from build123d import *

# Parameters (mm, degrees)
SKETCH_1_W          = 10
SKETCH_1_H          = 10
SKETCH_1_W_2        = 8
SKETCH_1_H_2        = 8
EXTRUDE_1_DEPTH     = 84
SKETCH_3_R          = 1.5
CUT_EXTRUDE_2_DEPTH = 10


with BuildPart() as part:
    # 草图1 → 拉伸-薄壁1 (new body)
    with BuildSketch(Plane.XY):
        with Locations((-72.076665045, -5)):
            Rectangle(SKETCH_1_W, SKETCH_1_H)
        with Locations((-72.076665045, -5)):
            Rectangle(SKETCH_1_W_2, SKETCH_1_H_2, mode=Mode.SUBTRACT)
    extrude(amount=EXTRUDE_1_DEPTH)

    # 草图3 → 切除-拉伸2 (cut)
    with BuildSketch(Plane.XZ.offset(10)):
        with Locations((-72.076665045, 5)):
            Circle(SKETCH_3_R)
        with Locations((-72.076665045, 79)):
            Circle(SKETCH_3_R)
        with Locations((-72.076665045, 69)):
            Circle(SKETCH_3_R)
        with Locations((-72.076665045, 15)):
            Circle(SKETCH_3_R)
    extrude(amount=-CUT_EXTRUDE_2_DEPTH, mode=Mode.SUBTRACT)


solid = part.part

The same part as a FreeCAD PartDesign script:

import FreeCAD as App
import Part
import Sketcher
from FreeCAD import Vector
Q = App.Units.Quantity

doc = App.newDocument("Part")
body = doc.addObject("PartDesign::Body", "Body")

sketch1 = body.newObject("Sketcher::SketchObject", "Sketch")
sketch1.AttachmentSupport = (doc.getObject("XY_Plane"), [""])
sketch1.MapMode = "FlatFace"
sketch1.addGeometry([
    Part.LineSegment(Vector(-77, 0, 0), Vector(-77, -10, 0)),
    Part.LineSegment(Vector(-77, -10, 0), Vector(-67, -10, 0)),
    Part.LineSegment(Vector(-67, -10, 0), Vector(-67, 0, 0)),
    Part.LineSegment(Vector(-67, 0, 0), Vector(-77, 0, 0)),
    Part.LineSegment(Vector(-68, -9, 0), Vector(-76, -9, 0)),
    Part.LineSegment(Vector(-76, -9, 0), Vector(-76, -1, 0)),
    Part.LineSegment(Vector(-76, -1, 0), Vector(-68, -1, 0)),
    Part.LineSegment(Vector(-68, -1, 0), Vector(-68, -9, 0)),
], False)
sketch1.addConstraint([
    Sketcher.Constraint("Coincident", 0, 2, 1, 1),
    Sketcher.Constraint("Coincident", 1, 2, 2, 1),
    Sketcher.Constraint("Coincident", 2, 2, 3, 1),
    Sketcher.Constraint("Coincident", 3, 2, 0, 1),
    Sketcher.Constraint("Coincident", 4, 2, 5, 1),
    Sketcher.Constraint("Coincident", 5, 2, 6, 1),
    Sketcher.Constraint("Coincident", 6, 2, 7, 1),
    Sketcher.Constraint("Coincident", 7, 2, 4, 1),
    Sketcher.Constraint("Vertical", 0),
    Sketcher.Constraint("Horizontal", 1),
    Sketcher.Constraint("Vertical", 2),
    Sketcher.Constraint("Horizontal", 3),
    Sketcher.Constraint("Horizontal", 4),
    Sketcher.Constraint("Vertical", 5),
    Sketcher.Constraint("Horizontal", 6),
    Sketcher.Constraint("Vertical", 7),
    Sketcher.Constraint("PointOnObject", 2, 2, -1),
    Sketcher.Constraint("Equal", 3, 0),
    Sketcher.Constraint("Equal", 6, 5),
    Sketcher.Constraint("DistanceX", 1, 1, 1, 2, Q("10 mm")),
    Sketcher.Constraint("DistanceX", 4, 2, 4, 1, Q("8 mm")),
    Sketcher.Constraint("DistanceY", 4, 2, -1, 1, Q("9 mm")),
    Sketcher.Constraint("DistanceX", 0, 2, 4, 2, Q("1 mm")),
    Sketcher.Constraint("DistanceX", 0, 2, -1, 1, Q("77.076665 mm")),
])
pad1 = body.newObject("PartDesign::Pad", "Pad")
pad1.Profile = sketch1
pad1.Length = 84

sketch2 = body.newObject("Sketcher::SketchObject", "Sketch001")
sketch2.AttachmentSupport = (doc.getObject("XZ_Plane"), [""])
sketch2.MapMode = "FlatFace"
sketch2.AttachmentOffset = App.Placement(Vector(0, 0, 10), App.Rotation())
sketch2.addGeometry([
    Part.Circle(Vector(-72.1, 5, 0), Vector(0, 0, 1), 1.5),
    Part.Circle(Vector(-72.1, 79, 0), Vector(0, 0, 1), 1.5),
    Part.Circle(Vector(-72.1, 69, 0), Vector(0, 0, 1), 1.5),
    Part.Circle(Vector(-72.1, 15, 0), Vector(0, 0, 1), 1.5),
], False)
sketch2.addConstraint([
    Sketcher.Constraint("Equal", 0, 1),
    Sketcher.Constraint("Equal", 1, 2),
    Sketcher.Constraint("Equal", 2, 3),
    Sketcher.Constraint("Vertical", 0, 3, 1, 3),
    Sketcher.Constraint("Vertical", 1, 3, 2, 3),
    Sketcher.Constraint("Vertical", 2, 3, 3, 3),
    Sketcher.Constraint("Diameter", 0, Q("3 mm")),
    Sketcher.Constraint("DistanceY", -1, 1, 0, 3, Q("5 mm")),
    Sketcher.Constraint("DistanceY", -1, 1, 1, 3, Q("79 mm")),
    Sketcher.Constraint("DistanceY", -1, 1, 2, 3, Q("69 mm")),
    Sketcher.Constraint("DistanceY", -1, 1, 3, 3, Q("15 mm")),
    Sketcher.Constraint("DistanceX", 0, 3, -1, 1, Q("72.076665 mm")),
])
pocket1 = body.newObject("PartDesign::Pocket", "Pocket")
pocket1.Profile = sketch2
pocket1.Length = 10

doc.recompute()
